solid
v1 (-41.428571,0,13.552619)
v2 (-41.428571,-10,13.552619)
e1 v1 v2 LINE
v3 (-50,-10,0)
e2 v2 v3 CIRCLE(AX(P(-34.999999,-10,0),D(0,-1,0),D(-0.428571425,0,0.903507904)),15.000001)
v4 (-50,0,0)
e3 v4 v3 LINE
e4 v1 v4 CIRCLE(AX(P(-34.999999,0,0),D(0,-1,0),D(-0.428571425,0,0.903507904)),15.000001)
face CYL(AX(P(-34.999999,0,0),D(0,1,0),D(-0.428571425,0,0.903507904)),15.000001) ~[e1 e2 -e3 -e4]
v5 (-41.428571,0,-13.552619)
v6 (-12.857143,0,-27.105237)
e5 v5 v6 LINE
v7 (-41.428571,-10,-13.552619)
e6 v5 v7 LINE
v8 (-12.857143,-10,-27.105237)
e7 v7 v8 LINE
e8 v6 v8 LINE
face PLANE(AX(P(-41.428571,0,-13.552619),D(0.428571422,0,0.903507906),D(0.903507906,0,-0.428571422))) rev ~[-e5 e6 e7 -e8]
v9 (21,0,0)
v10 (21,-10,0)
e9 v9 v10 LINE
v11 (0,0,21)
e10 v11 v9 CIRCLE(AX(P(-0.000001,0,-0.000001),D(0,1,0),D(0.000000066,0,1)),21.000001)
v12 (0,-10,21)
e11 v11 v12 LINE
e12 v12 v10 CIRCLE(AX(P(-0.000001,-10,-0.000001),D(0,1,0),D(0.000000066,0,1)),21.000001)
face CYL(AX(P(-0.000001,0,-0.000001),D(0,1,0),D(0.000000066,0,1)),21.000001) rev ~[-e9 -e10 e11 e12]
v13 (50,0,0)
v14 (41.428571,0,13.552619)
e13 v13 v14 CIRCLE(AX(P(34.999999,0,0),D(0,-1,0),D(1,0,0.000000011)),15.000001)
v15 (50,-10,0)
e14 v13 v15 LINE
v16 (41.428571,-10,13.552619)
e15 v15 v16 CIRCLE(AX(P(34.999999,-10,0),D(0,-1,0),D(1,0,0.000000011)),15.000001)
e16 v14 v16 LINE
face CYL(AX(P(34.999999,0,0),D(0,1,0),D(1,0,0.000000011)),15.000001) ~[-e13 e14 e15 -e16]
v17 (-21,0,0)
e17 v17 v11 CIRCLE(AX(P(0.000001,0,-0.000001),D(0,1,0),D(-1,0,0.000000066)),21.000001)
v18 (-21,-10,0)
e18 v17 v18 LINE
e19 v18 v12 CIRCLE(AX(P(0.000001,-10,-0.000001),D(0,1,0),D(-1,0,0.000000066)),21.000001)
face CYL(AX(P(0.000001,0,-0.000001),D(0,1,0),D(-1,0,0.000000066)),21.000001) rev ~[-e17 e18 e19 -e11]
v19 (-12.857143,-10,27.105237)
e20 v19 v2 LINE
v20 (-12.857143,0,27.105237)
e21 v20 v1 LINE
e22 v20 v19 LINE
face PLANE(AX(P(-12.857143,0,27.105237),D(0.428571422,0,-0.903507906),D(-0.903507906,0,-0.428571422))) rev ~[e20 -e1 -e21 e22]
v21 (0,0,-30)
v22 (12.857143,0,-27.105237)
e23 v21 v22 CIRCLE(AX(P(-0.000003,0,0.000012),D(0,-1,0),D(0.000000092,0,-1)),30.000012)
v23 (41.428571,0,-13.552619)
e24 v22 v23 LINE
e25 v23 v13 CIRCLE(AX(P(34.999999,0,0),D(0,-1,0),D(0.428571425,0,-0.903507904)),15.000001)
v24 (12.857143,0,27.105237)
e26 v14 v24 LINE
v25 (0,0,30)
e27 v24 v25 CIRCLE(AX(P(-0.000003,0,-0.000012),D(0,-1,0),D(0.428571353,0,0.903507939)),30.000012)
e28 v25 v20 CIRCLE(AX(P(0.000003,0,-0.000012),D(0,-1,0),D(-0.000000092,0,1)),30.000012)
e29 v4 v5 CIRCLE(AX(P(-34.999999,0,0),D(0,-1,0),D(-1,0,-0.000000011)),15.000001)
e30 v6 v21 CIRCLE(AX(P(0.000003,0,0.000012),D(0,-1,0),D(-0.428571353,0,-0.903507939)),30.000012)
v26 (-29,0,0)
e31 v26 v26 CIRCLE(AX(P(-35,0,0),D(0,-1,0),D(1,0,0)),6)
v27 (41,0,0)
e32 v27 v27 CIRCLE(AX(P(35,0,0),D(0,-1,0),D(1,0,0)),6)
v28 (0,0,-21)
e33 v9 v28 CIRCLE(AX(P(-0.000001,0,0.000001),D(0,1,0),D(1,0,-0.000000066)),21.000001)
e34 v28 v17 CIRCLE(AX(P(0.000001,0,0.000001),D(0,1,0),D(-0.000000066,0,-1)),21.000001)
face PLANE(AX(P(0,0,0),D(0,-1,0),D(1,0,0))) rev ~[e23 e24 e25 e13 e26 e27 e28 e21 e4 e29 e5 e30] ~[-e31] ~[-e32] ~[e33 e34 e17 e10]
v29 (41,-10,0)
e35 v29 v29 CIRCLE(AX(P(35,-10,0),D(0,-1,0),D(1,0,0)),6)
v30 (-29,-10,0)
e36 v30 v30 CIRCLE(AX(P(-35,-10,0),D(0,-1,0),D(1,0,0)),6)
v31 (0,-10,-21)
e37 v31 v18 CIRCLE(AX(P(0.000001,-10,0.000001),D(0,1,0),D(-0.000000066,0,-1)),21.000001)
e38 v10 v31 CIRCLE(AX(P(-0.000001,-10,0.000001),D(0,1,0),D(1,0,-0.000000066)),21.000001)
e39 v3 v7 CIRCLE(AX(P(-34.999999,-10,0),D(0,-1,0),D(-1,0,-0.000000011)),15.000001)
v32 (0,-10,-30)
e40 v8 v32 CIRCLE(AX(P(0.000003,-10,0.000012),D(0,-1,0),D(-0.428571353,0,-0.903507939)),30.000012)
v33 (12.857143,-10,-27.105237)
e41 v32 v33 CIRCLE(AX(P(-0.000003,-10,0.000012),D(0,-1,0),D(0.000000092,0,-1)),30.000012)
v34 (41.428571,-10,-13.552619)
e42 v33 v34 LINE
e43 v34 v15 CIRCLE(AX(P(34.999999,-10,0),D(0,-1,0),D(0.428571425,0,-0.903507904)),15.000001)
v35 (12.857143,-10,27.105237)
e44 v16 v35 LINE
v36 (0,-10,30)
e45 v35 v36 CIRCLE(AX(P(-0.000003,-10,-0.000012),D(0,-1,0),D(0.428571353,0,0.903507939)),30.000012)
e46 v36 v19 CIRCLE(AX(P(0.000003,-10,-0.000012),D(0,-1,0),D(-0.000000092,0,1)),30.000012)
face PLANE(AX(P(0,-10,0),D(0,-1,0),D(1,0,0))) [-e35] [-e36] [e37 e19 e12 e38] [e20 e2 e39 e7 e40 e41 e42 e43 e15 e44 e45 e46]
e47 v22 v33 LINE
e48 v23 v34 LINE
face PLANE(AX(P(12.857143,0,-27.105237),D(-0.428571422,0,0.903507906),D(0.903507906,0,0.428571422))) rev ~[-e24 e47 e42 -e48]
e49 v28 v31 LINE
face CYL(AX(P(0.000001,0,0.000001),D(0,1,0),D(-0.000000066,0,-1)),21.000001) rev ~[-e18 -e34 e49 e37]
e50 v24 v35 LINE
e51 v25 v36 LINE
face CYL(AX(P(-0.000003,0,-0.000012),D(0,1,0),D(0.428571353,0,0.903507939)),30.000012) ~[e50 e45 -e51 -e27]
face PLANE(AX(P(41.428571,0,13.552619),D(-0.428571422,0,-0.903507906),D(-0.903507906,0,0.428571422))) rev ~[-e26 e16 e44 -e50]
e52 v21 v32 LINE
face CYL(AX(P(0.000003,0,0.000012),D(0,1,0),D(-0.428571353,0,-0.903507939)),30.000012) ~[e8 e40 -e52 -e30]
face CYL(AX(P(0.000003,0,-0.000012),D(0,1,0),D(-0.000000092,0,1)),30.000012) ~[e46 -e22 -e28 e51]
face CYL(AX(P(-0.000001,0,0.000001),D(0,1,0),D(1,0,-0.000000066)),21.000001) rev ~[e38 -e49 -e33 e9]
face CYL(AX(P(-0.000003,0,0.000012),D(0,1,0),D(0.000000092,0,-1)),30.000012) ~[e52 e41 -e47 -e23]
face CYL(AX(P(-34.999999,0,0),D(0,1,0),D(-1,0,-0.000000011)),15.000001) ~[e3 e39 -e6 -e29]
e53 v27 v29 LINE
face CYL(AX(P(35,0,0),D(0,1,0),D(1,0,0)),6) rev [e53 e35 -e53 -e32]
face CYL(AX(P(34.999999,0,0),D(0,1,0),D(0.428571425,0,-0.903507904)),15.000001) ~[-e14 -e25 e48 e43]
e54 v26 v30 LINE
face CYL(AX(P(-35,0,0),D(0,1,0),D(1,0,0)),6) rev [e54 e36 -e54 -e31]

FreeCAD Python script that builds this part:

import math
import FreeCAD as App
import Part
import Sketcher

doc = App.newDocument("Part")
params = doc.addObject("Spreadsheet::Sheet", "Params")
for row, (alias, value) in enumerate([
    ("sketch1_diameter", "12 mm"),
    ("sketch1_radius", "15.000001 mm"),
    ("sketch1_radius2", "21.000001 mm"),
    ("pad1_length", "10 mm"),
], start=1):
    params.set(f"A{row}", alias)
    params.set(f"B{row}", "=" + value)
    params.setAlias(f"B{row}", alias)

body = doc.addObject("PartDesign::Body", "Body")

# Sketch on XZ plane
sketch1 = body.newObject("Sketcher::SketchObject", "Sketch")
sketch1.AttachmentSupport = (doc.getObject("XZ_Plane"), [""])
sketch1.MapMode = "FlatFace"
sketch1.addGeometry([
    Part.LineSegment(App.Vector(41.428571, 13.552619, 0), App.Vector(12.857143, 27.105237, 0)),  # 0
    Part.ArcOfCircle(Part.Circle(App.Vector(-0.000003, -0.000012, 0), App.Vector(0, 0, 1), 30.000012), math.radians(64.623071), math.radians(89.999995)),  # 1
    Part.ArcOfCircle(Part.Circle(App.Vector(0.000003, -0.000012, 0), App.Vector(0, 0, 1), 30.000012), math.radians(90.000005), math.radians(115.376929)),  # 2
    Part.LineSegment(App.Vector(-12.857143, 27.105237, 0), App.Vector(-41.428571, 13.552619, 0)),  # 3
    Part.ArcOfCircle(Part.Circle(App.Vector(-34.999999, 0, 0), App.Vector(0, 0, 1), 15.000001), math.radians(115.376933), math.radians(179.999999)),  # 4
    Part.ArcOfCircle(Part.Circle(App.Vector(-34.999999, 0, 0), App.Vector(0, 0, 1), 15.000001), math.radians(-179.999999), math.radians(-115.376933)),  # 5
    Part.LineSegment(App.Vector(-41.428571, -13.552619, 0), App.Vector(-12.857143, -27.105237, 0)),  # 6
    Part.ArcOfCircle(Part.Circle(App.Vector(0.000003, 0.000012, 0), App.Vector(0, 0, 1), 30.000012), math.radians(-115.376929), math.radians(-90.000005)),  # 7
    Part.ArcOfCircle(Part.Circle(App.Vector(-0.000003, 0.000012, 0), App.Vector(0, 0, 1), 30.000012), math.radians(-89.999995), math.radians(-64.623071)),  # 8
    Part.LineSegment(App.Vector(12.857143, -27.105237, 0), App.Vector(41.428571, -13.552619, 0)),  # 9
    Part.ArcOfCircle(Part.Circle(App.Vector(34.999999, 0, 0), App.Vector(0, 0, 1), 15.000001), math.radians(-64.623067), math.radians(-0.000001)),  # 10
    Part.ArcOfCircle(Part.Circle(App.Vector(34.999999, 0, 0), App.Vector(0, 0, 1), 15.000001), math.radians(0.000001), math.radians(64.623067)),  # 11
    Part.Circle(App.Vector(-35, 0, 0), App.Vector(0, 0, 1), 6),  # 12
    Part.ArcOfCircle(Part.Circle(App.Vector(0.000001, -0.000001, 0), App.Vector(0, 0, 1), 21.000001), math.radians(90.000004), math.radians(179.999996)),  # 13
    Part.ArcOfCircle(Part.Circle(App.Vector(-0.000001, -0.000001, 0), App.Vector(0, 0, 1), 21.000001), math.radians(0.000004), math.radians(89.999996)),  # 14
    Part.ArcOfCircle(Part.Circle(App.Vector(-0.000001, 0.000001, 0), App.Vector(0, 0, 1), 21.000001), math.radians(-89.999996), math.radians(-0.000004)),  # 15
    Part.ArcOfCircle(Part.Circle(App.Vector(0.000001, 0.000001, 0), App.Vector(0, 0, 1), 21.000001), math.radians(-179.999996), math.radians(-90.000004)),  # 16
    Part.Circle(App.Vector(35, 0, 0), App.Vector(0, 0, 1), 6),  # 17
], False)
sketch1.addConstraint([
    Sketcher.Constraint("Tangent", 0, 2, 1, 1),
    Sketcher.Constraint("Tangent", 1, 2, 2, 1),
    Sketcher.Constraint("Tangent", 2, 2, 3, 1),
    Sketcher.Constraint("Tangent", 3, 2, 4, 1),
    Sketcher.Constraint("Tangent", 4, 2, 5, 1),
    Sketcher.Constraint("Tangent", 5, 2, 6, 1),
    Sketcher.Constraint("Tangent", 6, 2, 7, 1),
    Sketcher.Constraint("Tangent", 7, 2, 8, 1),
    Sketcher.Constraint("Tangent", 8, 2, 9, 1),
    Sketcher.Constraint("Tangent", 9, 2, 10, 1),
    Sketcher.Constraint("Tangent", 10, 2, 11, 1),
    Sketcher.Constraint("Tangent", 11, 2, 0, 1),
    Sketcher.Constraint("Tangent", 13, 1, 14, 2),
    Sketcher.Constraint("Tangent", 14, 1, 15, 2),
    Sketcher.Constraint("Tangent", 15, 1, 16, 2),
    Sketcher.Constraint("Tangent", 16, 1, 13, 2),
    Sketcher.Constraint("Coincident", 13, 3, -1, 1),
    Sketcher.Constraint("Coincident", 12, 3, 4, 3),
    Sketcher.Constraint("Coincident", 17, 3, 10, 3),
    Sketcher.Constraint("Equal", 1, 2),
    Sketcher.Constraint("Equal", 4, 5),
    Sketcher.Constraint("Equal", 2, 7),
    Sketcher.Constraint("Equal", 7, 8),
    Sketcher.Constraint("Equal", 5, 10),
    Sketcher.Constraint("Equal", 10, 11),
    Sketcher.Constraint("Equal", 13, 14),
    Sketcher.Constraint("Equal", 12, 17),
    Sketcher.Constraint("Symmetric", 1, 3, 7, 3, -1, 1),
    Sketcher.Constraint("Symmetric", 4, 3, 10, 3, -1, 1),
    Sketcher.Constraint("Symmetric", 0, 2, 2, 2, -2),
    Sketcher.Constraint("PointOnObject", 1, 2, -2),
    Sketcher.Constraint("PointOnObject", 4, 2, -1),
    Sketcher.Constraint("PointOnObject", 7, 2, -2),
    Sketcher.Constraint("PointOnObject", 10, 2, -1),
    Sketcher.Constraint("PointOnObject", 13, 1, -2),
    Sketcher.Constraint("PointOnObject", 14, 1, -1),
    Sketcher.Constraint("PointOnObject", 15, 1, -2),
    Sketcher.Constraint("PointOnObject", 16, 1, -1),
    Sketcher.Constraint("Diameter", 12, 12.0),
    Sketcher.Constraint("Radius", 4, 15.000001),
    Sketcher.Constraint("Radius", 13, 21.000001),
    Sketcher.Constraint("DistanceX", 4, 3, -1, 1, 34.999999),
    Sketcher.Constraint("DistanceY", -1, 1, 1, 2, 30.0),
    Sketcher.Constraint("Radius", 1, 30.000012),
])
sketch1.setExpression("Constraints[38]", "Params.sketch1_diameter")
sketch1.setExpression("Constraints[39]", "Params.sketch1_radius")
sketch1.setExpression("Constraints[40]", "Params.sketch1_radius2")
pad1 = body.newObject("PartDesign::Pad", "Pad")
pad1.Profile = sketch1
pad1.setExpression("Length", "Params.pad1_length")

doc.recompute()
